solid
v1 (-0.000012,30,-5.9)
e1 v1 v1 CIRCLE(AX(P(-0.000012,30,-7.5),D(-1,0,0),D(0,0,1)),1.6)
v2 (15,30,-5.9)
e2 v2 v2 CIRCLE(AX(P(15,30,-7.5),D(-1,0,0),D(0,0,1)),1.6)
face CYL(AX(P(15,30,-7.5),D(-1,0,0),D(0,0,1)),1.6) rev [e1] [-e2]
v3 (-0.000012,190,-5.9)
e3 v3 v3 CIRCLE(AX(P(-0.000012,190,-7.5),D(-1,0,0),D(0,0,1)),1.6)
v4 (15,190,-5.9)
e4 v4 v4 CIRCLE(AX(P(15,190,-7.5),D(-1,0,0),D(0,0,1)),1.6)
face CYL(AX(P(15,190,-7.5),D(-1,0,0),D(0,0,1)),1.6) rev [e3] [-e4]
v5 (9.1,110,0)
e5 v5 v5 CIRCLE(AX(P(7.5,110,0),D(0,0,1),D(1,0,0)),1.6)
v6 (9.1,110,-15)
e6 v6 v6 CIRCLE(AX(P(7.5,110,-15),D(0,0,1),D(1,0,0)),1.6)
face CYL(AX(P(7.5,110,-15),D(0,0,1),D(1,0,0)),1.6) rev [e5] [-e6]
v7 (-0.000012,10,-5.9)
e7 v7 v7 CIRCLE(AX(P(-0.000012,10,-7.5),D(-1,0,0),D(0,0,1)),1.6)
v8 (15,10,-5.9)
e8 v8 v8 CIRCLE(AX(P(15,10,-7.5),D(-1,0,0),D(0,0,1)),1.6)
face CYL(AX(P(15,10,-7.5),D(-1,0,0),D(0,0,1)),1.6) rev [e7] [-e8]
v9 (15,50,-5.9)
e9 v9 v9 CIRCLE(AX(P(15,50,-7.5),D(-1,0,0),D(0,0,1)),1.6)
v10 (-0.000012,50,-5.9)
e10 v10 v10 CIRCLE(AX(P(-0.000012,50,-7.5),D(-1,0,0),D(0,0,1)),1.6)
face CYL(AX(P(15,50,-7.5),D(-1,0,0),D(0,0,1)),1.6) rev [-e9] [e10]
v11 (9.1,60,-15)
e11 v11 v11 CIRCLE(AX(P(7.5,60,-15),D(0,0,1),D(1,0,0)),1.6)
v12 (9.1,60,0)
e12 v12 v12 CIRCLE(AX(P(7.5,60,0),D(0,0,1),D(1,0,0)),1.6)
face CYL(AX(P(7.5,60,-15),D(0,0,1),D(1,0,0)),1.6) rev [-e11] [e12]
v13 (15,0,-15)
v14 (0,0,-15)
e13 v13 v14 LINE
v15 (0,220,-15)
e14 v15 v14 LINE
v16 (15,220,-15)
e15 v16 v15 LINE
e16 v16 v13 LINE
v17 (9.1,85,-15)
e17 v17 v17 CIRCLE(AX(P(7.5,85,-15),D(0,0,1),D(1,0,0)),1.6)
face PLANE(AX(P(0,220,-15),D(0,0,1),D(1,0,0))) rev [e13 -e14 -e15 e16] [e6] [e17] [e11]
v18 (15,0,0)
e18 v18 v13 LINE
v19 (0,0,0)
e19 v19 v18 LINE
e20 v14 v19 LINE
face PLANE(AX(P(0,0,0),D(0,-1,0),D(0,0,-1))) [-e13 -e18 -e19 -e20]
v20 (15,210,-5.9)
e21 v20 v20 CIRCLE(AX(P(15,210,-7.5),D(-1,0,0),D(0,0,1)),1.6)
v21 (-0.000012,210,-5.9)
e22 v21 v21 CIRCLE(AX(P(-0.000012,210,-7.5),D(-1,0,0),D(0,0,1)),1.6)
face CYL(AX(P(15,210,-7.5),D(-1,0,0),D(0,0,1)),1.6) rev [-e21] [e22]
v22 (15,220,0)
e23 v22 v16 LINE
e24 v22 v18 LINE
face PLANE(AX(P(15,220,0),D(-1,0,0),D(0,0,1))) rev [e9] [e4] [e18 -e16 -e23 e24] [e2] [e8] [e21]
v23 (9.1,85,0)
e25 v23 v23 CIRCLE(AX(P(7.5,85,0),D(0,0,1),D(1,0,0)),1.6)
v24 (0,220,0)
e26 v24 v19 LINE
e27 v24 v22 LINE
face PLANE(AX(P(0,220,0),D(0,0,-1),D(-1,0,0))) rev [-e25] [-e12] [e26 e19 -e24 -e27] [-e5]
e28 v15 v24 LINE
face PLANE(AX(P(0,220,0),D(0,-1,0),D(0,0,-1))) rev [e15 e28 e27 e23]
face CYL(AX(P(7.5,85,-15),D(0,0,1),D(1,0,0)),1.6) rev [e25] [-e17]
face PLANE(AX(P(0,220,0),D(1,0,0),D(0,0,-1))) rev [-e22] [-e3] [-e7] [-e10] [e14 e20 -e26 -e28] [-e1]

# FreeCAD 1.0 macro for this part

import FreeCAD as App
import Part
import Sketcher

V = App.Vector
Q = App.Units.Quantity


def add_polygon(sketch, points):
    """Adds a closed chain of lines whose ends are joined by coincident constraints."""
    first, n = sketch.GeometryCount, len(points)
    for a, b in zip(points, points[1:] + points[:1]):
        sketch.addGeometry(Part.LineSegment(App.Vector(*a, 0), App.Vector(*b, 0)), False)
    for i in range(n):
        sketch.addConstraint(Sketcher.Constraint("Coincident", first + i, 2, first + (i + 1) % n, 1))

doc = App.newDocument("Part")
body = doc.addObject("PartDesign::Body", "Body")

# Sketch on XZ plane
sketch1 = body.newObject("Sketcher::SketchObject", "Sketch")
sketch1.AttachmentSupport = (doc.getObject("XZ_Plane"), [""])
sketch1.MapMode = "FlatFace"
add_polygon(sketch1, [(0, -15), (0, 0), (15, 0), (15, -15)])  # lines 0-3
sketch1.addConstraint([
    Sketcher.Constraint("Vertical", 0),
    Sketcher.Constraint("Horizontal", 1),
    Sketcher.Constraint("Vertical", 2),
    Sketcher.Constraint("Horizontal", 3),
    Sketcher.Constraint("Coincident", 0, 2, -1, 1),
    Sketcher.Constraint("Equal", 3, 0),
    Sketcher.Constraint("DistanceX", 1, 1, 1, 2, Q("15 mm")),
])
pad1 = body.newObject("PartDesign::Pad", "Pad")
pad1.Profile = sketch1
pad1.Length = 220
pad1.Reversed = True

# Sketch on XY plane
sketch2 = body.newObject("Sketcher::SketchObject", "Sketch001")
sketch2.AttachmentSupport = (doc.getObject("XY_Plane"), [""])
sketch2.MapMode = "FlatFace"
sketch2.addGeometry([
    Part.Circle(V(7.5, 60, 0), V(0, 0, 1), 1.6),
    Part.Circle(V(7.5, 85, 0), V(0, 0, 1), 1.6),
    Part.Circle(V(7.5, 110, 0), V(0, 0, 1), 1.6),
], False)
sketch2.addConstraint([
    Sketcher.Constraint("Equal", 0, 1),
    Sketcher.Constraint("Equal", 1, 2),
    Sketcher.Constraint("Vertical", 0, 3, 1, 3),
    Sketcher.Constraint("Vertical", 1, 3, 2, 3),
    Sketcher.Constraint("Diameter", 0, Q("3.2 mm")),
    Sketcher.Constraint("DistanceY", -1, 1, 0, 3, Q("60 mm")),
    Sketcher.Constraint("DistanceY", -1, 1, 1, 3, Q("85 mm")),
    Sketcher.Constraint("DistanceY", -1, 1, 2, 3, Q("110 mm")),
    Sketcher.Constraint("DistanceX", -1, 1, 0, 3, Q("7.5 mm")),
])
pocket1 = body.newObject("PartDesign::Pocket", "Pocket")
pocket1.Profile = sketch2
pocket1.Type = "ThroughAll"

# Sketch on YZ plane
sketch3 = body.newObject("Sketcher::SketchObject", "Sketch002")
sketch3.AttachmentSupport = (doc.getObject("YZ_Plane"), [""])
sketch3.MapMode = "FlatFace"
sketch3.addGeometry([
    Part.Circle(V(50, -7.5, 0), V(0, 0, 1), 1.6),  # 0
    Part.Circle(V(10, -7.5, 0), V(0, 0, 1), 1.6),  # 1
    Part.Circle(V(30, -7.5, 0), V(0, 0, 1), 1.6),  # 2
    Part.Circle(V(210, -7.5, 0), V(0, 0, 1), 1.6),  # 3
    Part.Circle(V(190, -7.5, 0), V(0, 0, 1), 1.6),  # 4
], False)
sketch3.addConstraint([
    Sketcher.Constraint("Equal", 0, 1),
    Sketcher.Constraint("Equal", 1, 2),
    Sketcher.Constraint("Equal", 2, 3),
    Sketcher.Constraint("Equal", 3, 4),
    Sketcher.Constraint("Horizontal", 0, 3, 1, 3),
    Sketcher.Constraint("Horizontal", 1, 3, 2, 3),
    Sketcher.Constraint("Horizontal", 2, 3, 3, 3),
    Sketcher.Constraint("Horizontal", 3, 3, 4, 3),
    Sketcher.Constraint("Diameter", 0, Q("3.2 mm")),
    Sketcher.Constraint("DistanceX", -1, 1, 0, 3, Q("50 mm")),
    Sketcher.Constraint("DistanceX", -1, 1, 1, 3, Q("10 mm")),
    Sketcher.Constraint("DistanceX", -1, 1, 2, 3, Q("30 mm")),
    Sketcher.Constraint("DistanceX", -1, 1, 3, 3, Q("210 mm")),
    Sketcher.Constraint("DistanceX", -1, 1, 4, 3, Q("190 mm")),
    Sketcher.Constraint("DistanceY", 0, 3, -1, 1, Q("7.5 mm")),
])
pocket2 = body.newObject("PartDesign::Pocket", "Pocket001")
pocket2.Profile = sketch3
pocket2.Type = "ThroughAll"
pocket2.Midplane = True

doc.recompute()
